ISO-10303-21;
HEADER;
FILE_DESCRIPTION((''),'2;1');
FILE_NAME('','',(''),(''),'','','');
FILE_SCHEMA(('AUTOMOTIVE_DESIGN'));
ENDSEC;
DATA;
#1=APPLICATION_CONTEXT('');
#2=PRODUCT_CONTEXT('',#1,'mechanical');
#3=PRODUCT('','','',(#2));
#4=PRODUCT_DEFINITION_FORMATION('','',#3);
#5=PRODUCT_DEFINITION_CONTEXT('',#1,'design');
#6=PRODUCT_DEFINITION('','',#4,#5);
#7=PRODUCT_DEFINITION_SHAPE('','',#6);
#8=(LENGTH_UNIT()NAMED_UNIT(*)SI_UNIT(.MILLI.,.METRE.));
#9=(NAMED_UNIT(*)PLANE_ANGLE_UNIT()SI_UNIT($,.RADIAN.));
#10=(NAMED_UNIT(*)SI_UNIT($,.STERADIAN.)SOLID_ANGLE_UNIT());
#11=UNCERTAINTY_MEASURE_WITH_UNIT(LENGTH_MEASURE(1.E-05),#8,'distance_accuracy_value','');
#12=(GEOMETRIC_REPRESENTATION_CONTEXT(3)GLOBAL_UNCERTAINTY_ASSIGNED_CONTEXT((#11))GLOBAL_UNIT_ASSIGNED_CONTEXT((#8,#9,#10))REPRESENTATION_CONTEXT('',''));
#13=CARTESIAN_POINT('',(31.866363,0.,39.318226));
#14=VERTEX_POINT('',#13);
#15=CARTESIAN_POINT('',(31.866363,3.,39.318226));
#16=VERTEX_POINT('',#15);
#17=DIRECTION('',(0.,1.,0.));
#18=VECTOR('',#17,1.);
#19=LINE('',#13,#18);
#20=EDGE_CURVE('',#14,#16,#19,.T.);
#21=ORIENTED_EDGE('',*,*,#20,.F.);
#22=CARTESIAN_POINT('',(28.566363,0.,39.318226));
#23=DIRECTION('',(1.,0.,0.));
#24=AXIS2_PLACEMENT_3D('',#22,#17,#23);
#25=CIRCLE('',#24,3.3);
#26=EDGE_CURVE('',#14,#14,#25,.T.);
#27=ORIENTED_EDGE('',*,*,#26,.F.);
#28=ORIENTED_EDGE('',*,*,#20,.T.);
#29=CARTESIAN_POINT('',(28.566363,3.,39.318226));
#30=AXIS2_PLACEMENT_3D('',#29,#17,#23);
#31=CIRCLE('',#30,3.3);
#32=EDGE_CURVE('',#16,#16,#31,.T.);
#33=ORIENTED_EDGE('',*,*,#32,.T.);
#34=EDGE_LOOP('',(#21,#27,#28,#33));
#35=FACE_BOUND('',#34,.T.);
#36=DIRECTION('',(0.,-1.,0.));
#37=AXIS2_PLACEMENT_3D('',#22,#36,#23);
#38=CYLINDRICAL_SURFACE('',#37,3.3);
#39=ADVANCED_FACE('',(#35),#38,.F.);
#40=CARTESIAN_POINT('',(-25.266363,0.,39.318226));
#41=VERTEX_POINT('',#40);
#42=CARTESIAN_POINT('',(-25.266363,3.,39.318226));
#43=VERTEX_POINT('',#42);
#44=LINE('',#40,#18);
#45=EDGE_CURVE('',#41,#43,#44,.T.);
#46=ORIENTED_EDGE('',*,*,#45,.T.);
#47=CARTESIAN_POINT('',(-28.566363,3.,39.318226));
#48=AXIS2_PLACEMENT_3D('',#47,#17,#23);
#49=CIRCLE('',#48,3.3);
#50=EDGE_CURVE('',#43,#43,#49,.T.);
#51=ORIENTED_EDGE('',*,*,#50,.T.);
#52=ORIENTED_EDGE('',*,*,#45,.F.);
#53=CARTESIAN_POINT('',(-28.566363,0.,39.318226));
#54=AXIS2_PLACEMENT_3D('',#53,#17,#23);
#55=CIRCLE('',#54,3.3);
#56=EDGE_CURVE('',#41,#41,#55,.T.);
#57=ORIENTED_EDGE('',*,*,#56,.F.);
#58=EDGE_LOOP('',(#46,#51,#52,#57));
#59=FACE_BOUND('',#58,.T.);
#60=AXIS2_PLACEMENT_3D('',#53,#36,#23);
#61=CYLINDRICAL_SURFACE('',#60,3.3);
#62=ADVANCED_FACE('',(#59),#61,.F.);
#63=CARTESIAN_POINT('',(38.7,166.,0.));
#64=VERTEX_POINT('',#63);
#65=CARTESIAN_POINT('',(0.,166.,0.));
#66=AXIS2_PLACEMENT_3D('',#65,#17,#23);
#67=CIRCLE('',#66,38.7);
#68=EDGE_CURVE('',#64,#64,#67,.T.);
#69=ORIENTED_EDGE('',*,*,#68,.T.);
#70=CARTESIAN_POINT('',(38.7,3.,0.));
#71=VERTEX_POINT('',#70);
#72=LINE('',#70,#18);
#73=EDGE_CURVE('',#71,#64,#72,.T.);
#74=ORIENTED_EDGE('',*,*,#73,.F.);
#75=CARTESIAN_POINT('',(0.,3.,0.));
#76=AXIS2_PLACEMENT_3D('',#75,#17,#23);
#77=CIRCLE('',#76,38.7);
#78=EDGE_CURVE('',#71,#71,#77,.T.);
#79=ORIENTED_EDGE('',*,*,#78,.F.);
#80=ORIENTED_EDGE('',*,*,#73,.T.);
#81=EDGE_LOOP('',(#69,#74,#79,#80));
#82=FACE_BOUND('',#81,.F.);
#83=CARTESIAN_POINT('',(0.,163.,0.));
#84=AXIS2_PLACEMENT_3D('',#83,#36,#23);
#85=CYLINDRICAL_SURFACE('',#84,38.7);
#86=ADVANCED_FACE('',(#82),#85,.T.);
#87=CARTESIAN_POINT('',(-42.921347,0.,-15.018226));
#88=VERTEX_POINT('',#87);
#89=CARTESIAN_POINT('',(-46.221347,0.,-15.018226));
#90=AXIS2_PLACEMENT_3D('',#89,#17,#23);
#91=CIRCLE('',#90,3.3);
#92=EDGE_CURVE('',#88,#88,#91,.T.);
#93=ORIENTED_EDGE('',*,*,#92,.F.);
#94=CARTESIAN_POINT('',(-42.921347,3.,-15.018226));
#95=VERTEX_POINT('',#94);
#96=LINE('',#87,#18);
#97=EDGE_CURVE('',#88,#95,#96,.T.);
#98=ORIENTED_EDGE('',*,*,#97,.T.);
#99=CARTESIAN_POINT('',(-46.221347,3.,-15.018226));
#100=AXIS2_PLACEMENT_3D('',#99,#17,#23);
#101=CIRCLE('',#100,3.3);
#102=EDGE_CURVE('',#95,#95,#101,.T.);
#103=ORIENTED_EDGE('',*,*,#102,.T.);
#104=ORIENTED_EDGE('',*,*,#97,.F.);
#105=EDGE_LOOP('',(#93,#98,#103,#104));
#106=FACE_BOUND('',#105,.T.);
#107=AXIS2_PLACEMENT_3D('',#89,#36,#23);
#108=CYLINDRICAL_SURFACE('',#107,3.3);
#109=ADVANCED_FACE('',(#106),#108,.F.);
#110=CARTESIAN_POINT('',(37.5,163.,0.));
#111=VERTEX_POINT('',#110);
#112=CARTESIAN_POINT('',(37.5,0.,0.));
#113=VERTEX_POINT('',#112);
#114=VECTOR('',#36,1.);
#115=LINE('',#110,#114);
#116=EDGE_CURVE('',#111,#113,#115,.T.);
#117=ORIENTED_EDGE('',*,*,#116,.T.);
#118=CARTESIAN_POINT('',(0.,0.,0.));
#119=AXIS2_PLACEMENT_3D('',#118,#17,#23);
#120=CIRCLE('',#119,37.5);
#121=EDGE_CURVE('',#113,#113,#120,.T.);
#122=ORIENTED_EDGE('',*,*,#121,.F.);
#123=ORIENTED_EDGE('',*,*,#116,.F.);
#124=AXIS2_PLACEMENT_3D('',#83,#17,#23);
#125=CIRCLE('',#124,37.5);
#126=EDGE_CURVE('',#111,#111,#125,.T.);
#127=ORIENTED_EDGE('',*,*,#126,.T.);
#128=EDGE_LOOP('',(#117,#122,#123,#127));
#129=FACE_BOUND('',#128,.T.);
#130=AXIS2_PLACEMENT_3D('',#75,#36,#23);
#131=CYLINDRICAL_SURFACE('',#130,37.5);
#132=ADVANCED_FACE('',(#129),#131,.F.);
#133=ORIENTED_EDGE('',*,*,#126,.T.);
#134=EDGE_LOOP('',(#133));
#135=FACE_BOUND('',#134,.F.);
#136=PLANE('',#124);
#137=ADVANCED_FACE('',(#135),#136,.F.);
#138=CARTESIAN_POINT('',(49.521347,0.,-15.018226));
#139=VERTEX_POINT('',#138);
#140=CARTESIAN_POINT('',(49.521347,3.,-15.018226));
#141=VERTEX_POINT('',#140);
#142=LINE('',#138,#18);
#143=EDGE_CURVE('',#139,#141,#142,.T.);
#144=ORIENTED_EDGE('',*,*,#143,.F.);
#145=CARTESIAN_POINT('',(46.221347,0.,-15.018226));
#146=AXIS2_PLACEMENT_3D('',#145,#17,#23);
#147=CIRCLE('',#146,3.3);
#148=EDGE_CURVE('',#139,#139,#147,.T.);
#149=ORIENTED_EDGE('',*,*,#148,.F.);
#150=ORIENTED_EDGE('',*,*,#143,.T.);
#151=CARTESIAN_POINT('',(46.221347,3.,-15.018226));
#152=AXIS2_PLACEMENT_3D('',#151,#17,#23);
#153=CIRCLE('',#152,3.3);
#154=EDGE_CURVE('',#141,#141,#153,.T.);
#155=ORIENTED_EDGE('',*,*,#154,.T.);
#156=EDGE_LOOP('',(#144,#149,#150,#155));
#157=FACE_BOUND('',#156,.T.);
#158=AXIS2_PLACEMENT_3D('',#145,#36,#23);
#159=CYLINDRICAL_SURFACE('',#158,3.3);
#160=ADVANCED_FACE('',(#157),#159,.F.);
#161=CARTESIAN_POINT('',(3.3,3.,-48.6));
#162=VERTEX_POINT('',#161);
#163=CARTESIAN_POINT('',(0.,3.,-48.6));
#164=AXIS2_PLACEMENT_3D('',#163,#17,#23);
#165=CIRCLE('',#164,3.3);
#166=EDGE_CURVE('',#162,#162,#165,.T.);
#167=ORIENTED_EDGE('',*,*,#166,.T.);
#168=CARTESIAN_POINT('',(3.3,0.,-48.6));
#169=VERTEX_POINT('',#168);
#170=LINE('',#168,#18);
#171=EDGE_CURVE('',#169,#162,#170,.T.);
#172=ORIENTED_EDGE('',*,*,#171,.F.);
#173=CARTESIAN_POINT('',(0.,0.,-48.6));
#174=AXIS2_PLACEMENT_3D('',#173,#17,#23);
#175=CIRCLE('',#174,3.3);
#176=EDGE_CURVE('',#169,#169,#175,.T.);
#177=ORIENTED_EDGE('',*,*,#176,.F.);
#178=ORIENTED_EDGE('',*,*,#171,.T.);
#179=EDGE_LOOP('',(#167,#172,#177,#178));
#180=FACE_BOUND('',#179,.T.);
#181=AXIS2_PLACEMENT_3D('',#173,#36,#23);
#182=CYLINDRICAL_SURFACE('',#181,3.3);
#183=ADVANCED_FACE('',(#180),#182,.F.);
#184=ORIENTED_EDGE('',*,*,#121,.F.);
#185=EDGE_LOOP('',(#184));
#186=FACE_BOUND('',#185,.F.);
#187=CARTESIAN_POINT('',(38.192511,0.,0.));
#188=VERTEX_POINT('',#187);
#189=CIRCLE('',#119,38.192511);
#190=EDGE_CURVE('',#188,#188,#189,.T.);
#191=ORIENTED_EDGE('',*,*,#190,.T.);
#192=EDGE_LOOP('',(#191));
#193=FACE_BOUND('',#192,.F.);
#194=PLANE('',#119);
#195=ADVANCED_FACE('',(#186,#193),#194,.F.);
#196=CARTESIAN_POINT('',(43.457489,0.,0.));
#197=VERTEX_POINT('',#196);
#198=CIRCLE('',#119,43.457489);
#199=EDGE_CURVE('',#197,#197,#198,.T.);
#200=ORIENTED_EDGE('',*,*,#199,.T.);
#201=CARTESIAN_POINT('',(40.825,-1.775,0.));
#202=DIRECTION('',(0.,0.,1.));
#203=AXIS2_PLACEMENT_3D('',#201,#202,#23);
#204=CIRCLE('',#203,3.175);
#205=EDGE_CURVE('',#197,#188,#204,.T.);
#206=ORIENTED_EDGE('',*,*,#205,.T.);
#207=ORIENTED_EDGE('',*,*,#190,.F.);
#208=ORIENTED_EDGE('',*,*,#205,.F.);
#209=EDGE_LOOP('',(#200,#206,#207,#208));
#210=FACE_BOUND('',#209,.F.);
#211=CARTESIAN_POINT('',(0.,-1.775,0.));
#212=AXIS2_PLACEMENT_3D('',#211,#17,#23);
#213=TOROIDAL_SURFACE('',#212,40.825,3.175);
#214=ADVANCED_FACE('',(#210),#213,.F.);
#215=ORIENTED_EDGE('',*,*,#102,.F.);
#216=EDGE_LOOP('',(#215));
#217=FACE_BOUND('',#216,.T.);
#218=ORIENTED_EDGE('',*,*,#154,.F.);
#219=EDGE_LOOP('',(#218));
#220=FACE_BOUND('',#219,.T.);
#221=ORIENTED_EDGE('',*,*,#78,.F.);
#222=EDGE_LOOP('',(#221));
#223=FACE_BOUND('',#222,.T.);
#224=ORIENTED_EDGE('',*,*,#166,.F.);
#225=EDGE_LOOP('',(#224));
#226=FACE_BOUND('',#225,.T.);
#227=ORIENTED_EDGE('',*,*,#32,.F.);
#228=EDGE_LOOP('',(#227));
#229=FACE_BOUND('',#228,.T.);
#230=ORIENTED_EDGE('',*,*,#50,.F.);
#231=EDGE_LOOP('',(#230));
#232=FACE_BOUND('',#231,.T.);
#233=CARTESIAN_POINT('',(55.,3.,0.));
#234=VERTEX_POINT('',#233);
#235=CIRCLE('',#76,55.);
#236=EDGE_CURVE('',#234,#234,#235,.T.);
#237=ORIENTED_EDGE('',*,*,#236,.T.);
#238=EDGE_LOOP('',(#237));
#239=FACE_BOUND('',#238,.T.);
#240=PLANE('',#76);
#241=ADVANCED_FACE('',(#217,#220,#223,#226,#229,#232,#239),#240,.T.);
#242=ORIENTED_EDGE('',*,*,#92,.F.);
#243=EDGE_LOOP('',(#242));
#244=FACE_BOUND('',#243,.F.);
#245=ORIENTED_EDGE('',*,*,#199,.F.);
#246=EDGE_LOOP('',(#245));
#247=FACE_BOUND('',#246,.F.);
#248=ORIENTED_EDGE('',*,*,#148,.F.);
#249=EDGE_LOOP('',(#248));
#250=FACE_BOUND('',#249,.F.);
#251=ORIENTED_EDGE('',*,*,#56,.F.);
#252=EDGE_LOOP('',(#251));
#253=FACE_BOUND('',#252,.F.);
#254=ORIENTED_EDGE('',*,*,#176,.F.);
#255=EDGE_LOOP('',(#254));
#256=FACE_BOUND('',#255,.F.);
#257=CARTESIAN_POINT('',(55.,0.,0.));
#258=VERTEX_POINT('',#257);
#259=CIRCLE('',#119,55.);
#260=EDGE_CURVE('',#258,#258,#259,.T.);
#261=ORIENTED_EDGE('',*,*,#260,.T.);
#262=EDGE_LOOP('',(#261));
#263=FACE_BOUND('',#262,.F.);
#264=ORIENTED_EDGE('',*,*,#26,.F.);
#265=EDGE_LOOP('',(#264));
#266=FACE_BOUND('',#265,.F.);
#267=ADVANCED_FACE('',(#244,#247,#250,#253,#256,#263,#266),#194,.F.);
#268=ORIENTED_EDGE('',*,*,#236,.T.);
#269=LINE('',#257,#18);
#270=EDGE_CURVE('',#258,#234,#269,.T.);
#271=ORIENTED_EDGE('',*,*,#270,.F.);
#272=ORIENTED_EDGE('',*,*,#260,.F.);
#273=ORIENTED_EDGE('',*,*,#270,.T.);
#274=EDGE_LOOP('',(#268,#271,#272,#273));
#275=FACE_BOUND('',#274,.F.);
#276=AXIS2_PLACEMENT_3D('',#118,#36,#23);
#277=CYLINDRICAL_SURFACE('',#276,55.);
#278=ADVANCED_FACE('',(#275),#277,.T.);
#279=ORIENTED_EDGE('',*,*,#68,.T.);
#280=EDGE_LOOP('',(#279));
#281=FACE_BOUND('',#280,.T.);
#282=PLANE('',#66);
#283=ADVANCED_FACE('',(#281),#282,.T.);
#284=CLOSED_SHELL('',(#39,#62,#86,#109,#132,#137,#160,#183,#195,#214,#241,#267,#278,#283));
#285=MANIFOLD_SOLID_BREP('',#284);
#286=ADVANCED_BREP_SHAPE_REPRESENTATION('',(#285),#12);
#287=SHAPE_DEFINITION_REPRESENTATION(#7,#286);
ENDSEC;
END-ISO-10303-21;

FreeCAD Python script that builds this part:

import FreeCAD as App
import Part
import Sketcher

doc = App.newDocument("Part")
body = doc.addObject("PartDesign::Body", "Body")

# Sketch on XZ plane
sketch1 = body.newObject("Sketcher::SketchObject", "Sketch")
sketch1.AttachmentSupport = (doc.getObject("XZ_Plane"), [""])
sketch1.MapMode = "FlatFace"
sketch1.addGeometry([
    Part.Circle(App.Vector(0, 0, 0), App.Vector(0, 0, 1), 55),  # 0
    Part.Circle(App.Vector(-28.6, 39.3, 0), App.Vector(0, 0, 1), 3.3),  # 1
    Part.Circle(App.Vector(0, 0, 0), App.Vector(0, 0, 1), 37.5),  # 2
    Part.Circle(App.Vector(28.6, 39.3, 0), App.Vector(0, 0, 1), 3.3),  # 3
    Part.Circle(App.Vector(-46.2, -15, 0), App.Vector(0, 0, 1), 3.3),  # 4
    Part.Circle(App.Vector(0, -48.6, 0), App.Vector(0, 0, 1), 3.3),  # 5
    Part.Circle(App.Vector(46.2, -15, 0), App.Vector(0, 0, 1), 3.3),  # 6
], False)
sketch1.addConstraint([
    Sketcher.Constraint("Coincident", 0, 3, -1, 1),
    Sketcher.Constraint("Coincident", 2, 3, -1, 1),
    Sketcher.Constraint("Equal", 1, 3),
    Sketcher.Constraint("Equal", 3, 4),
    Sketcher.Constraint("Equal", 4, 5),
    Sketcher.Constraint("Equal", 5, 6),
    Sketcher.Constraint("Symmetric", 1, 3, 3, 3, -2),
    Sketcher.Constraint("Symmetric", 4, 3, 6, 3, -2),
    Sketcher.Constraint("PointOnObject", 5, 3, -2),
    Sketcher.Constraint("Diameter", 0, 110.0),
    Sketcher.Constraint("Diameter", 2, 75.0),
    Sketcher.Constraint("Diameter", 1, 6.6),
    Sketcher.Constraint("DistanceY", 5, 3, -1, 1, 48.6),
    Sketcher.Constraint("DistanceY", 4, 3, 1, 3, 54.336452),
    Sketcher.Constraint("DistanceX", 4, 3, 3, 3, 74.78771),
    Sketcher.Constraint("DistanceX", 1, 3, -1, 1, 28.566363),
    Sketcher.Constraint("DistanceY", -1, 1, 1, 3, 39.318226),
])
pad1 = body.newObject("PartDesign::Pad", "Pad")
pad1.Profile = sketch1
pad1.Length = 3
pad1.Reversed = True

# Sketch on XY plane
sketch2 = body.newObject("Sketcher::SketchObject", "Sketch001")
sketch2.AttachmentSupport = (doc.getObject("XY_Plane"), [""])
sketch2.MapMode = "FlatFace"
sketch2.addGeometry(Part.Circle(App.Vector(40.8, -1.8, 0), App.Vector(0, 0, 1), 3.2), False)
sketch2.addConstraint([
    Sketcher.Constraint("Diameter", 0, 6.35),
    Sketcher.Constraint("DistanceX", -1, 1, 0, 3, 40.825),
    Sketcher.Constraint("DistanceY", 0, 3, -1, 1, 1.775),
])
groove = body.newObject("PartDesign::Groove", "Groove")
groove.Profile = sketch2
groove.ReferenceAxis = (sketch2, ["V_Axis"])
groove.Angle = 360

# Sketch on XZ plane
sketch3 = body.newObject("Sketcher::SketchObject", "Sketch002")
sketch3.AttachmentSupport = (doc.getObject("XZ_Plane"), [""])
sketch3.MapMode = "FlatFace"
sketch3.AttachmentOffset = App.Placement(App.Vector(0, 0, -3), App.Rotation())
sketch3.addGeometry([
    Part.Circle(App.Vector(0, 0, 0), App.Vector(0, 0, 1), 39),
    Part.Circle(App.Vector(0, 0, 0), App.Vector(0, 0, 1), 38),
], False)
sketch3.addConstraint([
    Sketcher.Constraint("Coincident", 0, 3, -1, 1),
    Sketcher.Constraint("Coincident", 1, 3, -1, 1),
    Sketcher.Constraint("Diameter", 1, 75.0),
    Sketcher.Constraint("Diameter", 0, 77.4),
])
pad2 = body.newObject("PartDesign::Pad", "Pad001")
pad2.Profile = sketch3
pad2.Length = 160
pad2.Reversed = True

# Sketch on XZ plane
sketch4 = body.newObject("Sketcher::SketchObject", "Sketch003")
sketch4.AttachmentSupport = (doc.getObject("XZ_Plane"), [""])
sketch4.MapMode = "FlatFace"
sketch4.AttachmentOffset = App.Placement(App.Vector(0, 0, -163), App.Rotation())
sketch4.addGeometry(Part.Circle(App.Vector(0, 0, 0), App.Vector(0, 0, 1), 39), False)
sketch4.addConstraint([
    Sketcher.Constraint("Coincident", 0, 3, -1, 1),
    Sketcher.Constraint("Diameter", 0, 77.4),
])
pad3 = body.newObject("PartDesign::Pad", "Pad002")
pad3.Profile = sketch4
pad3.Length = 3
pad3.Reversed = True

doc.recompute()
